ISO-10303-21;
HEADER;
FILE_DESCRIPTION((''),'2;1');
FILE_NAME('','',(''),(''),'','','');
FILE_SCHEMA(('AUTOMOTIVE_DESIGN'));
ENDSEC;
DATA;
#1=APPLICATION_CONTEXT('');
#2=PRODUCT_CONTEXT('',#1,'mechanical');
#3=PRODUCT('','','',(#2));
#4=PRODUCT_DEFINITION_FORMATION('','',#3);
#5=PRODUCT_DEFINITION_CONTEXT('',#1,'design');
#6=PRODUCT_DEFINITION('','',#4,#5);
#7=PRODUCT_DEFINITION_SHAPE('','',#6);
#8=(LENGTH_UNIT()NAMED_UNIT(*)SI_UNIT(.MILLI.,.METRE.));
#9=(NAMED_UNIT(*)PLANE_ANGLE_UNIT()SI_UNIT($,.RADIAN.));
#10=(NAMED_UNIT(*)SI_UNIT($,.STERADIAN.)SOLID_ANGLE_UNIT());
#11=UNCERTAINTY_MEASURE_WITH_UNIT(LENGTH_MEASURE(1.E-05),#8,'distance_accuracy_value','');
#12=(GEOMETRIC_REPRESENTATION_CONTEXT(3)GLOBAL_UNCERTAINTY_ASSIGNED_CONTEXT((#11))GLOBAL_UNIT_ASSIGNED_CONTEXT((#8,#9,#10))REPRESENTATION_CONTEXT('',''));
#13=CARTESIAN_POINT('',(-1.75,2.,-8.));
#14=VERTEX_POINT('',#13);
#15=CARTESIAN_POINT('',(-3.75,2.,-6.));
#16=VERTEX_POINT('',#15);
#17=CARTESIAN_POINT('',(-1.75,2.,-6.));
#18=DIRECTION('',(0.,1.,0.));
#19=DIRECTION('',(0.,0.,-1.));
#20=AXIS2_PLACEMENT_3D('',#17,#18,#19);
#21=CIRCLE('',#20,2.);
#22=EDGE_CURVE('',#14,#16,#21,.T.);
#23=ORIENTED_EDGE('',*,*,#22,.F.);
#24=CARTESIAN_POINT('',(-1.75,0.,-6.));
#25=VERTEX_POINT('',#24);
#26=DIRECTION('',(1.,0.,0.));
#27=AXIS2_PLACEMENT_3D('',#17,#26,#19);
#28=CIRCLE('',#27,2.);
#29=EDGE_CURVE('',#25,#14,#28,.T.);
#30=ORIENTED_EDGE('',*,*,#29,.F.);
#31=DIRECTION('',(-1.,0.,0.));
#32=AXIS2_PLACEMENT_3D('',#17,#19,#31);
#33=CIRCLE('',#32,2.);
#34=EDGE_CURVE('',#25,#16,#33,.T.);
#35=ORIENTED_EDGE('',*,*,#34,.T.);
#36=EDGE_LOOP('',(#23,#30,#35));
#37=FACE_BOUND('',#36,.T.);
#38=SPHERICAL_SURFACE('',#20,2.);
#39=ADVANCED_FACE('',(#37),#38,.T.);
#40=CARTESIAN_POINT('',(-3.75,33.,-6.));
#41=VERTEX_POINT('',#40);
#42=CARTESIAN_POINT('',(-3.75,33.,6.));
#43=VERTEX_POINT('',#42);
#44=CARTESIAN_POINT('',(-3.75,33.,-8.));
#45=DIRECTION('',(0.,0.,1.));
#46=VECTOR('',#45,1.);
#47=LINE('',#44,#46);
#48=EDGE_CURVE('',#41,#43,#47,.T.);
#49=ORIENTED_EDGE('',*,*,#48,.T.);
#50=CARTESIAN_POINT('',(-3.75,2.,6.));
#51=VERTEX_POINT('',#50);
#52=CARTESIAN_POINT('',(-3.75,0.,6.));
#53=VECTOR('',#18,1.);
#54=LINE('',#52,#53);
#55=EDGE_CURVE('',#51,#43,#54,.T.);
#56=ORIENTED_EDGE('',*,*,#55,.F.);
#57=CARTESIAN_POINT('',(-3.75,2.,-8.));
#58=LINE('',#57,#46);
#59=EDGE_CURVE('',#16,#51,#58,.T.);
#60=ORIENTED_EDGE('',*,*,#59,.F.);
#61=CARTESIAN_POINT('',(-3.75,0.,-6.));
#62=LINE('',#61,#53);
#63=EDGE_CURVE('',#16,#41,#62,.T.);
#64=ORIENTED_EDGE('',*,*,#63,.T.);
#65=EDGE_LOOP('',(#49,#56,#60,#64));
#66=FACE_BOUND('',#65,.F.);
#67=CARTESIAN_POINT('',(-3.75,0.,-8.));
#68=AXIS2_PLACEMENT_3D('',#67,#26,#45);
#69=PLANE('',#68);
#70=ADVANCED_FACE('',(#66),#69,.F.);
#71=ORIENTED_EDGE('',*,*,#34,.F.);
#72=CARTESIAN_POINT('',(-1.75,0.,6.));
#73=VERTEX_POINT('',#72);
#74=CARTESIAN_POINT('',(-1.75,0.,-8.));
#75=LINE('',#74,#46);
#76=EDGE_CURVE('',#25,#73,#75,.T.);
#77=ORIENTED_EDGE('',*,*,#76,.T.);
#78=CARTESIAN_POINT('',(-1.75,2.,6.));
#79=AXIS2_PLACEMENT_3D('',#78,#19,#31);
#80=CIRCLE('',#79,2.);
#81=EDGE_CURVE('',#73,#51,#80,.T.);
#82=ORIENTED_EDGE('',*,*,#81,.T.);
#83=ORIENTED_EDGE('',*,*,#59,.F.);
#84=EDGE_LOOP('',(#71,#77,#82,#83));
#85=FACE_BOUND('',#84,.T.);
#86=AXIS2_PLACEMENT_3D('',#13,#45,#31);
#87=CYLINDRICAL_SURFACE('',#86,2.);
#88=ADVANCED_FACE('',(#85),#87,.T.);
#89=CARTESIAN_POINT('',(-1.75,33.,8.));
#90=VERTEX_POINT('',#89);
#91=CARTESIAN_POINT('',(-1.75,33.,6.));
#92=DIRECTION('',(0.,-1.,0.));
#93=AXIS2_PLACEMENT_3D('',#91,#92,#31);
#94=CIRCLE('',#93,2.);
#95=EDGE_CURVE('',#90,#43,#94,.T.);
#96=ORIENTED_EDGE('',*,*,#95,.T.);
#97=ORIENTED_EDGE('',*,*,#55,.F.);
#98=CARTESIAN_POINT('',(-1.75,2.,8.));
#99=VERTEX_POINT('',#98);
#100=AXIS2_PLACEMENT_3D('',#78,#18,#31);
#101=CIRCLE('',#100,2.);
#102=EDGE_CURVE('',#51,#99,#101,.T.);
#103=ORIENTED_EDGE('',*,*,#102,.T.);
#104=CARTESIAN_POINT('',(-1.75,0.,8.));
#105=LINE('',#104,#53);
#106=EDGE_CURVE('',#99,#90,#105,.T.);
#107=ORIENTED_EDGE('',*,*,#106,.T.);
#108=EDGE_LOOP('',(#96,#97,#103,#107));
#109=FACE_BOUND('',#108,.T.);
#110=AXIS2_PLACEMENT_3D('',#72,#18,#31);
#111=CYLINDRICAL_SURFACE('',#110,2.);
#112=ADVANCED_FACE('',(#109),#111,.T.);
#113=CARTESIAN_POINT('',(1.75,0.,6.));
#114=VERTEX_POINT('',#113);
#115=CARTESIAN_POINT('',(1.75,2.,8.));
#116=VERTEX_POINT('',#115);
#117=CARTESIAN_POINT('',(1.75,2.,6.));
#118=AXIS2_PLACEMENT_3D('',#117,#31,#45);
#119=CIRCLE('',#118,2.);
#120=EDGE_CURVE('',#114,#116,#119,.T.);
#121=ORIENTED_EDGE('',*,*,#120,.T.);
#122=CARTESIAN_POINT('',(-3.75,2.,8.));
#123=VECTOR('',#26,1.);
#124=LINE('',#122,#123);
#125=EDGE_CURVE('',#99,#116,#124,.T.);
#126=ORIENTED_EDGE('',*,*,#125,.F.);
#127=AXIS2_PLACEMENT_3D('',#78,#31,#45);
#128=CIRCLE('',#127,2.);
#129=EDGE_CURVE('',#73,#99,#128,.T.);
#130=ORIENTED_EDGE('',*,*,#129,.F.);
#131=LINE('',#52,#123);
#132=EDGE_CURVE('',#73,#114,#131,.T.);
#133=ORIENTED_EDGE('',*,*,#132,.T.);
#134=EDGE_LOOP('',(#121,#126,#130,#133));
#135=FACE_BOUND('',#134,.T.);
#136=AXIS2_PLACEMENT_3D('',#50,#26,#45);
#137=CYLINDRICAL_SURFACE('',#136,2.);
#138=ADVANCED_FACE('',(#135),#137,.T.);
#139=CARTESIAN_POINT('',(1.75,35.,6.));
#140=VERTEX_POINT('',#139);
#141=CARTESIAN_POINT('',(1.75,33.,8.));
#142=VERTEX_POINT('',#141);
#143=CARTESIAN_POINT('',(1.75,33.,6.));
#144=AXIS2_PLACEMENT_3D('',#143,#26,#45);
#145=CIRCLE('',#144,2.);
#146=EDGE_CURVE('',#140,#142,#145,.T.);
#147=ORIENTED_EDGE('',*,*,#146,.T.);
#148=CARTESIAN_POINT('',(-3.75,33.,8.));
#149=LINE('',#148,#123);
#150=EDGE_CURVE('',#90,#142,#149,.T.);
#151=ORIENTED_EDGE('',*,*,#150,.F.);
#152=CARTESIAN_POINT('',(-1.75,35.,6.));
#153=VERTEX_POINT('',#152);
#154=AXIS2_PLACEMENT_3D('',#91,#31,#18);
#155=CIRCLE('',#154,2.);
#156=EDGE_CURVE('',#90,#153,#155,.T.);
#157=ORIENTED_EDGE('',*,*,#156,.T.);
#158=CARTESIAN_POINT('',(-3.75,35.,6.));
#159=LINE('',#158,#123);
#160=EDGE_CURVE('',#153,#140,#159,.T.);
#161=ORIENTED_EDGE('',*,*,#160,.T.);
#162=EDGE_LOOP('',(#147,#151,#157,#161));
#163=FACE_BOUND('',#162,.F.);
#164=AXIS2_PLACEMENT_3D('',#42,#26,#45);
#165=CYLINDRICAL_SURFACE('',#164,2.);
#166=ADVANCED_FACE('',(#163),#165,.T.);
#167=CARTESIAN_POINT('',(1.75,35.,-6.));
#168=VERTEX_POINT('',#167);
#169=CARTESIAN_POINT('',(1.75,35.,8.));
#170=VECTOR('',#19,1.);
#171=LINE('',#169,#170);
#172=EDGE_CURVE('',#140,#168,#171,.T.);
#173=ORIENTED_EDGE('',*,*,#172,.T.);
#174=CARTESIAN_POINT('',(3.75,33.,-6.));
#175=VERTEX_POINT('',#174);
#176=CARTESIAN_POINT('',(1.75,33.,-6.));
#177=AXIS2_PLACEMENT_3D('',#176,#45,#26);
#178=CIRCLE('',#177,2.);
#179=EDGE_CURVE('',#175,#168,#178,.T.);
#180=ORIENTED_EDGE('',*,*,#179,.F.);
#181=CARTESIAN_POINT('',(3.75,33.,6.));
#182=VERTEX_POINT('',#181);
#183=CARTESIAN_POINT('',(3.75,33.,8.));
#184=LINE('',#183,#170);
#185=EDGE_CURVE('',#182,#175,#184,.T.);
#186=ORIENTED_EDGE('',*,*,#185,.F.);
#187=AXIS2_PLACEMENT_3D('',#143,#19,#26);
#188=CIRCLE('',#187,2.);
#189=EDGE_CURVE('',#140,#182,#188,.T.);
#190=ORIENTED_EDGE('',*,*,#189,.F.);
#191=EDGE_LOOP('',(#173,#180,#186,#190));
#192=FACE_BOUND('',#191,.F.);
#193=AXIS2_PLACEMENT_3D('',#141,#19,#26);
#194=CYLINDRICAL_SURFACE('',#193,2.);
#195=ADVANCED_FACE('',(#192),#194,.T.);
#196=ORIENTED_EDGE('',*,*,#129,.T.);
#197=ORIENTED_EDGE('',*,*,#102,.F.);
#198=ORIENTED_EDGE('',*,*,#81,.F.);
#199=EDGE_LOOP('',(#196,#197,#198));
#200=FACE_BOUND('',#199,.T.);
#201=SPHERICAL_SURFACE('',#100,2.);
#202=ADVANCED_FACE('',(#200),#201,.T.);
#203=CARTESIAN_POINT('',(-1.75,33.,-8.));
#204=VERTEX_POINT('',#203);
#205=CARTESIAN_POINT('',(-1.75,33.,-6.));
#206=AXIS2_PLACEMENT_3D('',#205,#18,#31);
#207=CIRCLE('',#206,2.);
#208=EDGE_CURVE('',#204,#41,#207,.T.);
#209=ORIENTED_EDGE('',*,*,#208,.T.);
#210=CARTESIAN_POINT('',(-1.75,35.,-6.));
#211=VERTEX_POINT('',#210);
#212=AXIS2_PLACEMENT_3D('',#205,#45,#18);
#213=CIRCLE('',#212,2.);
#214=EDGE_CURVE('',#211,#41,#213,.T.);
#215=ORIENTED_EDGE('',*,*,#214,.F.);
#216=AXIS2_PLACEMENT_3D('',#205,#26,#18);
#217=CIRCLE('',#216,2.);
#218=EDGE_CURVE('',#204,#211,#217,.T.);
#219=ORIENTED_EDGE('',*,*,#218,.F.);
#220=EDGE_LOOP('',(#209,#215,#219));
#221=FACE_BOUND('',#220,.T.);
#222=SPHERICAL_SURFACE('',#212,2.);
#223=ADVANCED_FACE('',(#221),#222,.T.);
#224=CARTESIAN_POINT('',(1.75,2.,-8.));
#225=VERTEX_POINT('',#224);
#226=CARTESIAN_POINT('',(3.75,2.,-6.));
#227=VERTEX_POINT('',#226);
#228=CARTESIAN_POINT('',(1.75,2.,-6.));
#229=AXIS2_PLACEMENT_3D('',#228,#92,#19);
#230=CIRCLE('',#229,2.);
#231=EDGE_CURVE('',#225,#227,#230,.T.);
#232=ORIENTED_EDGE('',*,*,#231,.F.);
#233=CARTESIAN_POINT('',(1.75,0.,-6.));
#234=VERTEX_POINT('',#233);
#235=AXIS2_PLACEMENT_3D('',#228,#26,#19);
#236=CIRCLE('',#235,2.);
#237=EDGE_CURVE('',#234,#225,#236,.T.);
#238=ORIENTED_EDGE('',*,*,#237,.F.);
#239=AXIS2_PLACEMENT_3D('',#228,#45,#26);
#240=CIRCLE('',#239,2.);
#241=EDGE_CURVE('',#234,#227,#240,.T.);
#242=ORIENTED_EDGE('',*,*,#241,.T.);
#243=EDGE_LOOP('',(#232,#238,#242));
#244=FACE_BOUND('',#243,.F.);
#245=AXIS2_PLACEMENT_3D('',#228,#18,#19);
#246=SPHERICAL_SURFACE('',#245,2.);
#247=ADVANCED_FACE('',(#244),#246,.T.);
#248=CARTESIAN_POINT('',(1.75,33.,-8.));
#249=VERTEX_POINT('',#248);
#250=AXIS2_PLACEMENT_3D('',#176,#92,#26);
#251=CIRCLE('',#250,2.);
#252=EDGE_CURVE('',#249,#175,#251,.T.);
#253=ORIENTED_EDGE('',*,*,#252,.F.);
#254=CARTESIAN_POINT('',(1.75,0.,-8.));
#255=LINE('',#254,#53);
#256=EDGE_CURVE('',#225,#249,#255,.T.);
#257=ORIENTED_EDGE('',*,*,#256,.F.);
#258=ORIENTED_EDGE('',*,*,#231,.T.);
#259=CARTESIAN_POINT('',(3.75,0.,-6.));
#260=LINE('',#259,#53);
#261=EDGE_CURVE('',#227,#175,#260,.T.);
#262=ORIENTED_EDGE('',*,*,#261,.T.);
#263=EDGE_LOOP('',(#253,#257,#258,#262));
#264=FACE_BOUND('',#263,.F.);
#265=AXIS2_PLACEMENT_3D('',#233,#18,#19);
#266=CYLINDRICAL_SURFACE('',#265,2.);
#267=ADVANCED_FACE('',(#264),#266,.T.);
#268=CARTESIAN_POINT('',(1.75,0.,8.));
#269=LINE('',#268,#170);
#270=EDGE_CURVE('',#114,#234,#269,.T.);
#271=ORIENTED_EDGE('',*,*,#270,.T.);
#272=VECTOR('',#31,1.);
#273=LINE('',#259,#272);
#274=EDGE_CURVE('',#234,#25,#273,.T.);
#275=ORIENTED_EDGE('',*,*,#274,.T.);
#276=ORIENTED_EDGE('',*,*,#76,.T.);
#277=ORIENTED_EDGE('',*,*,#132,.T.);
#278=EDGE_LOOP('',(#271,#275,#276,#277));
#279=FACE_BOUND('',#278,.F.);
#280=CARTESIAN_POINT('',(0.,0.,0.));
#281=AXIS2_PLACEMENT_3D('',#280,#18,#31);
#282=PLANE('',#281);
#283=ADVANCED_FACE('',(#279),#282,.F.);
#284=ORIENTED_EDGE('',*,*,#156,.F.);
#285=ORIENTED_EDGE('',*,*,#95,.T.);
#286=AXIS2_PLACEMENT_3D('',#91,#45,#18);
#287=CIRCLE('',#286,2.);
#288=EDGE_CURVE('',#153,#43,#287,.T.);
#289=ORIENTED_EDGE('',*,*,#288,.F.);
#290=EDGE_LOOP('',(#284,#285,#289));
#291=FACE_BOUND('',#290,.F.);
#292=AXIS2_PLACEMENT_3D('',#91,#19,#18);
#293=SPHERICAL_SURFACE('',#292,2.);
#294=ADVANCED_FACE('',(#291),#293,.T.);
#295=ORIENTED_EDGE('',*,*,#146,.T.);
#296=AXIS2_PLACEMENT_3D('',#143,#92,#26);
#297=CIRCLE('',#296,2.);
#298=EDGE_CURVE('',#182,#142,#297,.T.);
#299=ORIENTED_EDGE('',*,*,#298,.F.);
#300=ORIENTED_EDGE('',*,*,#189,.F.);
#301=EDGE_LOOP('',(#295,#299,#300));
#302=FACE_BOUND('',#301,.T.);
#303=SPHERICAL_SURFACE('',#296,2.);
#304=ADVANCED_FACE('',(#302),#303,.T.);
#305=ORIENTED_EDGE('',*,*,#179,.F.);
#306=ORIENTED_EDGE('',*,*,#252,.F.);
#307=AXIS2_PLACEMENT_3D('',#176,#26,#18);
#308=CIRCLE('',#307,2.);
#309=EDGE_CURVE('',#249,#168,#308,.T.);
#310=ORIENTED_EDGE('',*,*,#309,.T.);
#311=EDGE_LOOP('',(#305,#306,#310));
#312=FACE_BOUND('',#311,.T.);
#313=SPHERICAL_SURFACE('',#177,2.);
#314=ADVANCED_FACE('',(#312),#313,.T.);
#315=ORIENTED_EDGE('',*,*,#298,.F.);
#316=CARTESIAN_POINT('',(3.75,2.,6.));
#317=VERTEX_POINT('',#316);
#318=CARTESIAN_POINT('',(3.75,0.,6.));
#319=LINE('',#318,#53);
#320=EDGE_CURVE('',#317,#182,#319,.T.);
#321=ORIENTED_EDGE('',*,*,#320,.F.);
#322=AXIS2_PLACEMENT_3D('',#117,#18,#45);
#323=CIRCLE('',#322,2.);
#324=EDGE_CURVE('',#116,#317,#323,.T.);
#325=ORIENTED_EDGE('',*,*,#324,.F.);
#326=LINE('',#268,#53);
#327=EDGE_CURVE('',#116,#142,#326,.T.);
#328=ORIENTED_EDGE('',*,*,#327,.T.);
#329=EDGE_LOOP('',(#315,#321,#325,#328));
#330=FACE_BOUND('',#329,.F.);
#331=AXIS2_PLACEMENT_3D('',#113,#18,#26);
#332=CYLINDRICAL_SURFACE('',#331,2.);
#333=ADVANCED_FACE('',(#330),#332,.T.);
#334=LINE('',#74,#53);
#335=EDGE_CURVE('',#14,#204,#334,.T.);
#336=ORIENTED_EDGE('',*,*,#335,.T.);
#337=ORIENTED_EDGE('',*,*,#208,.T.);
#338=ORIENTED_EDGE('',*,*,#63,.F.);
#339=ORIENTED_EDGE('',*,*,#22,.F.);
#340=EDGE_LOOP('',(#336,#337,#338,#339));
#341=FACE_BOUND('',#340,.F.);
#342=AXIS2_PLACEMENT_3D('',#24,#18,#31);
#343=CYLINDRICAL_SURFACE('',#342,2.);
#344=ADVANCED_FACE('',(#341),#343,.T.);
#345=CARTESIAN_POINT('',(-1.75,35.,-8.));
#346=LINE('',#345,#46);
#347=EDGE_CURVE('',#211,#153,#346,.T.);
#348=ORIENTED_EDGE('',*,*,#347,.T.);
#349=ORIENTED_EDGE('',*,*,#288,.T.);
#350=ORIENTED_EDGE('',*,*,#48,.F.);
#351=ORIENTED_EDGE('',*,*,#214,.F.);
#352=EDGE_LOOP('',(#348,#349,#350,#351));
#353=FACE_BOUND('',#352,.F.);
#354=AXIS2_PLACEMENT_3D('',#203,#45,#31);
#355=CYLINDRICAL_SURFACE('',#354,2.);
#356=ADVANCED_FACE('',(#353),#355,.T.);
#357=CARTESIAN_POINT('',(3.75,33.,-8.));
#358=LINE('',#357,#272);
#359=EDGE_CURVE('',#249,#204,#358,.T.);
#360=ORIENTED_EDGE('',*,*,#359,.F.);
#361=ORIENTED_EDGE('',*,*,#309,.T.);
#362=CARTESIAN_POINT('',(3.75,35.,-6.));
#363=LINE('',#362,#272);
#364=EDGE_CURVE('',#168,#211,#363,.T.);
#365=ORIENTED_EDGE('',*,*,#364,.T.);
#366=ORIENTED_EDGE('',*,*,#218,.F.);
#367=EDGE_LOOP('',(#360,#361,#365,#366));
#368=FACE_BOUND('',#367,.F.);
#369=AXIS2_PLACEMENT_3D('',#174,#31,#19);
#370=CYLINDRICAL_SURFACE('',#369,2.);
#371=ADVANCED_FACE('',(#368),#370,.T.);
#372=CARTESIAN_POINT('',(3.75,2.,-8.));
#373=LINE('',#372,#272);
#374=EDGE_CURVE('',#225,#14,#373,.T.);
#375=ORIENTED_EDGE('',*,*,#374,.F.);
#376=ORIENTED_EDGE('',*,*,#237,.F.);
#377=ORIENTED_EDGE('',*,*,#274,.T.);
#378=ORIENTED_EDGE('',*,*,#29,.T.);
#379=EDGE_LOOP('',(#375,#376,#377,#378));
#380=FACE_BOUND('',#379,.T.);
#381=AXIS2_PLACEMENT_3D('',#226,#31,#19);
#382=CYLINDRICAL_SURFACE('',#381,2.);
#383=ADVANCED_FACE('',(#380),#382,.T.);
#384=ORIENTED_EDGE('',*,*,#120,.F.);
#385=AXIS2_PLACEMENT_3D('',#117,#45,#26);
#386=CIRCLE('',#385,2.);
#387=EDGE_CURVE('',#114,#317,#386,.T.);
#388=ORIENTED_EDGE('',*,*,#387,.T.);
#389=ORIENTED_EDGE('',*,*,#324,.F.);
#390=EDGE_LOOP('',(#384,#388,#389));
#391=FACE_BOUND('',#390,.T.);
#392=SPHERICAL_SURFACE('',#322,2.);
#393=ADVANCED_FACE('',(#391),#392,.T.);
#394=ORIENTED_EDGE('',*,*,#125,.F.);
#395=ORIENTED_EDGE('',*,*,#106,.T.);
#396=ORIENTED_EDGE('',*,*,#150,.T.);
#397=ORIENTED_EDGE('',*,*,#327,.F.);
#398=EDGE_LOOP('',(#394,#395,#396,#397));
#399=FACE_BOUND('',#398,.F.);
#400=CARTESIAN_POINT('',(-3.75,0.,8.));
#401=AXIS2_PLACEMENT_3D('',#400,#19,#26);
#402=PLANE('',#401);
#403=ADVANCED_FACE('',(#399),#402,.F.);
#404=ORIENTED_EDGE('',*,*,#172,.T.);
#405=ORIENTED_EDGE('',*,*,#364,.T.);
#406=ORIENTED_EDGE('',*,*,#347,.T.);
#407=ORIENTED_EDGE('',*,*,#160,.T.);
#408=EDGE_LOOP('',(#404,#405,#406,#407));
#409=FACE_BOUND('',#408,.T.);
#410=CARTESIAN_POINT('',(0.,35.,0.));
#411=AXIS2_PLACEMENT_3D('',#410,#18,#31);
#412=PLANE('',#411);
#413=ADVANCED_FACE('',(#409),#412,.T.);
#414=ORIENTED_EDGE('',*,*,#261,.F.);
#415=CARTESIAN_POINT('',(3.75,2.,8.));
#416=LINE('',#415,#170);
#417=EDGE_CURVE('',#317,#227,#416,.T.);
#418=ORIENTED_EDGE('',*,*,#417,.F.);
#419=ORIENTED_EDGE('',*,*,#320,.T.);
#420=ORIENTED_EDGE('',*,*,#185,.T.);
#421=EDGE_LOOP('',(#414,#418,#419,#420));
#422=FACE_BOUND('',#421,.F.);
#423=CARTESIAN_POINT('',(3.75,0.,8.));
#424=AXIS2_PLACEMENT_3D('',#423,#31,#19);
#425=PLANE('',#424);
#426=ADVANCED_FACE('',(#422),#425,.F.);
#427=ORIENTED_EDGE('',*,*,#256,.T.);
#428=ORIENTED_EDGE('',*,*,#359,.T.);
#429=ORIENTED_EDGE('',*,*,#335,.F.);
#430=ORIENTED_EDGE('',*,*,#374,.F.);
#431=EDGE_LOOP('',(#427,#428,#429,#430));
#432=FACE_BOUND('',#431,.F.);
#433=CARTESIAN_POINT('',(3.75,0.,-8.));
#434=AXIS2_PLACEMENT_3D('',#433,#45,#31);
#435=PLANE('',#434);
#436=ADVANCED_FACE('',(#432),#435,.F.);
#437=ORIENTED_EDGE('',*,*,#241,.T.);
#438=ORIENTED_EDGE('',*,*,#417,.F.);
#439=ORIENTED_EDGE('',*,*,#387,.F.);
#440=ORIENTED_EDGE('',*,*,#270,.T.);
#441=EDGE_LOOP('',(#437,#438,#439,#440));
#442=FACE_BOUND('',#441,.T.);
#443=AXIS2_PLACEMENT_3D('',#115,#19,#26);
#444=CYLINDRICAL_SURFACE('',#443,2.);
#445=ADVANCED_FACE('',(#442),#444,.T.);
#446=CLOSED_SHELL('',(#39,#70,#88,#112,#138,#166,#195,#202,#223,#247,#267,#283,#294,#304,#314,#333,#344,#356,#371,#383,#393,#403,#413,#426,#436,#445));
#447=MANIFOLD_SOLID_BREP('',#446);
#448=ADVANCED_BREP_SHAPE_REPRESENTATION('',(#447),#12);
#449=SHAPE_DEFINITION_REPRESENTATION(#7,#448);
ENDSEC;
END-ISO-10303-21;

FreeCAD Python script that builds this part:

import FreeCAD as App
import Part
import Sketcher
from FreeCAD import Vector


def add_polygon(sketch, points):
    """Adds a closed chain of lines whose ends are joined by coincident constraints."""
    first, n = sketch.GeometryCount, len(points)
    for a, b in zip(points, points[1:] + points[:1]):
        sketch.addGeometry(Part.LineSegment(App.Vector(*a, 0), App.Vector(*b, 0)), False)
    for i in range(n):
        sketch.addConstraint(Sketcher.Constraint("Coincident", first + i, 2, first + (i + 1) % n, 1))

doc = App.newDocument("Part")
body = doc.addObject("PartDesign::Body", "Body")

sketch1 = doc.addObject("Sketcher::SketchObject", "Sketch")
body.addObject(sketch1)
sketch1.AttachmentSupport = (doc.XZ_Plane, [""])
sketch1.MapMode = "FlatFace"
add_polygon(sketch1, [(-3.75, -8), (-3.75, 8), (3.75, 8), (3.75, -8)])
sketch1.addConstraint([
    Sketcher.Constraint("Vertical", 0),
    Sketcher.Constraint("Horizontal", 1),
    Sketcher.Constraint("Vertical", 2),
    Sketcher.Constraint("Horizontal", 3),
    Sketcher.Constraint("Symmetric", 0, 2, 2, 2, -1, 1),
    Sketcher.Constraint("DistanceY", 0, 1, 0, 2, 16.0),
    Sketcher.Constraint("DistanceX", 1, 1, 1, 2, 7.5),
])
pad1 = doc.addObject("PartDesign::Pad", "Pad")
body.addObject(pad1)
pad1.Profile = sketch1
pad1.Length = 35
pad1.Reversed = True
doc.recompute()

fillet = doc.addObject("PartDesign::Fillet", "Fillet")
body.addObject(fillet)
fillet.Base = (pad1, ["Edge1"])
fillet.UseAllEdges = True
fillet.Radius = 2

doc.recompute()
